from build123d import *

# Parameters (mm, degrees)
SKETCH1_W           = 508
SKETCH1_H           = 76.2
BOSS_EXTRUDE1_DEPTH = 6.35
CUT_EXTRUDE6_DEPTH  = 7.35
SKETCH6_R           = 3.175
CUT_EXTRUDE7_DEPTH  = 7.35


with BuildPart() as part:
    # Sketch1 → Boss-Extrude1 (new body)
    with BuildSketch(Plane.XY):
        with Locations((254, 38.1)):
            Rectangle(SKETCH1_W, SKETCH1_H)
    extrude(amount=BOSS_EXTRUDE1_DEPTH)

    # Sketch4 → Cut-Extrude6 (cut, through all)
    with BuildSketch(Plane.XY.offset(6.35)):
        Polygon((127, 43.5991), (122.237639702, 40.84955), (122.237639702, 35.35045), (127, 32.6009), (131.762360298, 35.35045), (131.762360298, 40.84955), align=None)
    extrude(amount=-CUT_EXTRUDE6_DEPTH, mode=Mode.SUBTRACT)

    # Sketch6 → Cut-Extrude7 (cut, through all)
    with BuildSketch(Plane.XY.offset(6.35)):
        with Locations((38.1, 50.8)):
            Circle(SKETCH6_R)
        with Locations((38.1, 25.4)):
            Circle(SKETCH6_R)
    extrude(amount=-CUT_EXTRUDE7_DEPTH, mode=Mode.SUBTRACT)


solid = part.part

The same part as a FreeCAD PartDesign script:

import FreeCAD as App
import Part
import Sketcher
from FreeCAD import Vector
Q = App.Units.Quantity


def add_polygon(sketch, points):
    """Adds a closed chain of lines whose ends are joined by coincident constraints."""
    first, n = sketch.GeometryCount, len(points)
    for a, b in zip(points, points[1:] + points[:1]):
        sketch.addGeometry(Part.LineSegment(App.Vector(*a, 0), App.Vector(*b, 0)), False)
    for i in range(n):
        sketch.addConstraint(Sketcher.Constraint("Coincident", first + i, 2, first + (i + 1) % n, 1))

doc = App.newDocument("Part")
body = doc.addObject("PartDesign::Body", "Body")

# Sketch on XY plane
sketch1 = body.newObject("Sketcher::SketchObject", "Sketch")
sketch1.AttachmentSupport = (doc.getObject("XY_Plane"), [""])
sketch1.MapMode = "FlatFace"
add_polygon(sketch1, [(0, 76), (0, 0), (508, 0), (508, 76)])  # lines 0-3
sketch1.addConstraint([
    Sketcher.Constraint("Vertical", 0),
    Sketcher.Constraint("Horizontal", 1),
    Sketcher.Constraint("Vertical", 2),
    Sketcher.Constraint("Horizontal", 3),
    Sketcher.Constraint("Coincident", 0, 2, -1, 1),
    Sketcher.Constraint("DistanceX", 1, 1, 1, 2, Q("20 in")),
    Sketcher.Constraint("DistanceY", 0, 2, 0, 1, Q("3 in")),
])
pad1 = body.newObject("PartDesign::Pad", "Pad")
pad1.Profile = sketch1
pad1.Length = Q("0.25 in")

# Sketch on XY plane
sketch2 = body.newObject("Sketcher::SketchObject", "Sketch001")
sketch2.AttachmentSupport = (doc.getObject("XY_Plane"), [""])
sketch2.MapMode = "FlatFace"
sketch2.AttachmentOffset = App.Placement(Vector(0, 0, 0.25 * 25.4), App.Rotation())
add_polygon(sketch2, [(127, 44), (122, 41), (122, 35), (127, 33), (132, 35), (132, 41)])  # lines 0-5
sketch2.addConstraint([
    Sketcher.Constraint("Vertical", 1),
    Sketcher.Constraint("Vertical", 4),
    Sketcher.Constraint("Parallel", 0, 3),
    Sketcher.Constraint("Parallel", 2, 5),
    Sketcher.Constraint("Horizontal", 1, 2, 3, 2),
    Sketcher.Constraint("Horizontal", 0, 2, 4, 2),
    Sketcher.Constraint("Vertical", 2, 2, 5, 2),
    Sketcher.Constraint("DistanceX", -1, 1, 2, 2, Q("5 in")),
    Sketcher.Constraint("Angle", 0, Q("-150 deg")),
    Sketcher.Constraint("DistanceY", 1, 2, 1, 1, Q("0.2165 in")),
    Sketcher.Constraint("DistanceY", 2, 2, 5, 2, Q("0.433 in")),
    Sketcher.Constraint("DistanceY", -1, 1, 2, 2, Q("1.2835 in")),
])
pocket1 = body.newObject("PartDesign::Pocket", "Pocket")
pocket1.Profile = sketch2
pocket1.Type = "ThroughAll"

# Sketch on XY plane
sketch3 = body.newObject("Sketcher::SketchObject", "Sketch002")
sketch3.AttachmentSupport = (doc.getObject("XY_Plane"), [""])
sketch3.MapMode = "FlatFace"
sketch3.AttachmentOffset = App.Placement(Vector(0, 0, 0.25 * 25.4), App.Rotation())
sketch3.addGeometry([
    Part.Circle(Vector(38.1, 50.8, 0), Vector(0, 0, 1), 3.2),
    Part.Circle(Vector(38.1, 25.4, 0), Vector(0, 0, 1), 3.2),
], False)
sketch3.addConstraint([
    Sketcher.Constraint("Equal", 0, 1),
    Sketcher.Constraint("Vertical", 0, 3, 1, 3),
    Sketcher.Constraint("Diameter", 0, Q("0.25 in")),
    Sketcher.Constraint("DistanceY", -1, 1, 0, 3, Q("2 in")),
    Sketcher.Constraint("DistanceY", -1, 1, 1, 3, Q("1 in")),
    Sketcher.Constraint("DistanceX", -1, 1, 0, 3, Q("1.5 in")),
])
pocket2 = body.newObject("PartDesign::Pocket", "Pocket001")
pocket2.Profile = sketch3
pocket2.Type = "ThroughAll"

doc.recompute()
